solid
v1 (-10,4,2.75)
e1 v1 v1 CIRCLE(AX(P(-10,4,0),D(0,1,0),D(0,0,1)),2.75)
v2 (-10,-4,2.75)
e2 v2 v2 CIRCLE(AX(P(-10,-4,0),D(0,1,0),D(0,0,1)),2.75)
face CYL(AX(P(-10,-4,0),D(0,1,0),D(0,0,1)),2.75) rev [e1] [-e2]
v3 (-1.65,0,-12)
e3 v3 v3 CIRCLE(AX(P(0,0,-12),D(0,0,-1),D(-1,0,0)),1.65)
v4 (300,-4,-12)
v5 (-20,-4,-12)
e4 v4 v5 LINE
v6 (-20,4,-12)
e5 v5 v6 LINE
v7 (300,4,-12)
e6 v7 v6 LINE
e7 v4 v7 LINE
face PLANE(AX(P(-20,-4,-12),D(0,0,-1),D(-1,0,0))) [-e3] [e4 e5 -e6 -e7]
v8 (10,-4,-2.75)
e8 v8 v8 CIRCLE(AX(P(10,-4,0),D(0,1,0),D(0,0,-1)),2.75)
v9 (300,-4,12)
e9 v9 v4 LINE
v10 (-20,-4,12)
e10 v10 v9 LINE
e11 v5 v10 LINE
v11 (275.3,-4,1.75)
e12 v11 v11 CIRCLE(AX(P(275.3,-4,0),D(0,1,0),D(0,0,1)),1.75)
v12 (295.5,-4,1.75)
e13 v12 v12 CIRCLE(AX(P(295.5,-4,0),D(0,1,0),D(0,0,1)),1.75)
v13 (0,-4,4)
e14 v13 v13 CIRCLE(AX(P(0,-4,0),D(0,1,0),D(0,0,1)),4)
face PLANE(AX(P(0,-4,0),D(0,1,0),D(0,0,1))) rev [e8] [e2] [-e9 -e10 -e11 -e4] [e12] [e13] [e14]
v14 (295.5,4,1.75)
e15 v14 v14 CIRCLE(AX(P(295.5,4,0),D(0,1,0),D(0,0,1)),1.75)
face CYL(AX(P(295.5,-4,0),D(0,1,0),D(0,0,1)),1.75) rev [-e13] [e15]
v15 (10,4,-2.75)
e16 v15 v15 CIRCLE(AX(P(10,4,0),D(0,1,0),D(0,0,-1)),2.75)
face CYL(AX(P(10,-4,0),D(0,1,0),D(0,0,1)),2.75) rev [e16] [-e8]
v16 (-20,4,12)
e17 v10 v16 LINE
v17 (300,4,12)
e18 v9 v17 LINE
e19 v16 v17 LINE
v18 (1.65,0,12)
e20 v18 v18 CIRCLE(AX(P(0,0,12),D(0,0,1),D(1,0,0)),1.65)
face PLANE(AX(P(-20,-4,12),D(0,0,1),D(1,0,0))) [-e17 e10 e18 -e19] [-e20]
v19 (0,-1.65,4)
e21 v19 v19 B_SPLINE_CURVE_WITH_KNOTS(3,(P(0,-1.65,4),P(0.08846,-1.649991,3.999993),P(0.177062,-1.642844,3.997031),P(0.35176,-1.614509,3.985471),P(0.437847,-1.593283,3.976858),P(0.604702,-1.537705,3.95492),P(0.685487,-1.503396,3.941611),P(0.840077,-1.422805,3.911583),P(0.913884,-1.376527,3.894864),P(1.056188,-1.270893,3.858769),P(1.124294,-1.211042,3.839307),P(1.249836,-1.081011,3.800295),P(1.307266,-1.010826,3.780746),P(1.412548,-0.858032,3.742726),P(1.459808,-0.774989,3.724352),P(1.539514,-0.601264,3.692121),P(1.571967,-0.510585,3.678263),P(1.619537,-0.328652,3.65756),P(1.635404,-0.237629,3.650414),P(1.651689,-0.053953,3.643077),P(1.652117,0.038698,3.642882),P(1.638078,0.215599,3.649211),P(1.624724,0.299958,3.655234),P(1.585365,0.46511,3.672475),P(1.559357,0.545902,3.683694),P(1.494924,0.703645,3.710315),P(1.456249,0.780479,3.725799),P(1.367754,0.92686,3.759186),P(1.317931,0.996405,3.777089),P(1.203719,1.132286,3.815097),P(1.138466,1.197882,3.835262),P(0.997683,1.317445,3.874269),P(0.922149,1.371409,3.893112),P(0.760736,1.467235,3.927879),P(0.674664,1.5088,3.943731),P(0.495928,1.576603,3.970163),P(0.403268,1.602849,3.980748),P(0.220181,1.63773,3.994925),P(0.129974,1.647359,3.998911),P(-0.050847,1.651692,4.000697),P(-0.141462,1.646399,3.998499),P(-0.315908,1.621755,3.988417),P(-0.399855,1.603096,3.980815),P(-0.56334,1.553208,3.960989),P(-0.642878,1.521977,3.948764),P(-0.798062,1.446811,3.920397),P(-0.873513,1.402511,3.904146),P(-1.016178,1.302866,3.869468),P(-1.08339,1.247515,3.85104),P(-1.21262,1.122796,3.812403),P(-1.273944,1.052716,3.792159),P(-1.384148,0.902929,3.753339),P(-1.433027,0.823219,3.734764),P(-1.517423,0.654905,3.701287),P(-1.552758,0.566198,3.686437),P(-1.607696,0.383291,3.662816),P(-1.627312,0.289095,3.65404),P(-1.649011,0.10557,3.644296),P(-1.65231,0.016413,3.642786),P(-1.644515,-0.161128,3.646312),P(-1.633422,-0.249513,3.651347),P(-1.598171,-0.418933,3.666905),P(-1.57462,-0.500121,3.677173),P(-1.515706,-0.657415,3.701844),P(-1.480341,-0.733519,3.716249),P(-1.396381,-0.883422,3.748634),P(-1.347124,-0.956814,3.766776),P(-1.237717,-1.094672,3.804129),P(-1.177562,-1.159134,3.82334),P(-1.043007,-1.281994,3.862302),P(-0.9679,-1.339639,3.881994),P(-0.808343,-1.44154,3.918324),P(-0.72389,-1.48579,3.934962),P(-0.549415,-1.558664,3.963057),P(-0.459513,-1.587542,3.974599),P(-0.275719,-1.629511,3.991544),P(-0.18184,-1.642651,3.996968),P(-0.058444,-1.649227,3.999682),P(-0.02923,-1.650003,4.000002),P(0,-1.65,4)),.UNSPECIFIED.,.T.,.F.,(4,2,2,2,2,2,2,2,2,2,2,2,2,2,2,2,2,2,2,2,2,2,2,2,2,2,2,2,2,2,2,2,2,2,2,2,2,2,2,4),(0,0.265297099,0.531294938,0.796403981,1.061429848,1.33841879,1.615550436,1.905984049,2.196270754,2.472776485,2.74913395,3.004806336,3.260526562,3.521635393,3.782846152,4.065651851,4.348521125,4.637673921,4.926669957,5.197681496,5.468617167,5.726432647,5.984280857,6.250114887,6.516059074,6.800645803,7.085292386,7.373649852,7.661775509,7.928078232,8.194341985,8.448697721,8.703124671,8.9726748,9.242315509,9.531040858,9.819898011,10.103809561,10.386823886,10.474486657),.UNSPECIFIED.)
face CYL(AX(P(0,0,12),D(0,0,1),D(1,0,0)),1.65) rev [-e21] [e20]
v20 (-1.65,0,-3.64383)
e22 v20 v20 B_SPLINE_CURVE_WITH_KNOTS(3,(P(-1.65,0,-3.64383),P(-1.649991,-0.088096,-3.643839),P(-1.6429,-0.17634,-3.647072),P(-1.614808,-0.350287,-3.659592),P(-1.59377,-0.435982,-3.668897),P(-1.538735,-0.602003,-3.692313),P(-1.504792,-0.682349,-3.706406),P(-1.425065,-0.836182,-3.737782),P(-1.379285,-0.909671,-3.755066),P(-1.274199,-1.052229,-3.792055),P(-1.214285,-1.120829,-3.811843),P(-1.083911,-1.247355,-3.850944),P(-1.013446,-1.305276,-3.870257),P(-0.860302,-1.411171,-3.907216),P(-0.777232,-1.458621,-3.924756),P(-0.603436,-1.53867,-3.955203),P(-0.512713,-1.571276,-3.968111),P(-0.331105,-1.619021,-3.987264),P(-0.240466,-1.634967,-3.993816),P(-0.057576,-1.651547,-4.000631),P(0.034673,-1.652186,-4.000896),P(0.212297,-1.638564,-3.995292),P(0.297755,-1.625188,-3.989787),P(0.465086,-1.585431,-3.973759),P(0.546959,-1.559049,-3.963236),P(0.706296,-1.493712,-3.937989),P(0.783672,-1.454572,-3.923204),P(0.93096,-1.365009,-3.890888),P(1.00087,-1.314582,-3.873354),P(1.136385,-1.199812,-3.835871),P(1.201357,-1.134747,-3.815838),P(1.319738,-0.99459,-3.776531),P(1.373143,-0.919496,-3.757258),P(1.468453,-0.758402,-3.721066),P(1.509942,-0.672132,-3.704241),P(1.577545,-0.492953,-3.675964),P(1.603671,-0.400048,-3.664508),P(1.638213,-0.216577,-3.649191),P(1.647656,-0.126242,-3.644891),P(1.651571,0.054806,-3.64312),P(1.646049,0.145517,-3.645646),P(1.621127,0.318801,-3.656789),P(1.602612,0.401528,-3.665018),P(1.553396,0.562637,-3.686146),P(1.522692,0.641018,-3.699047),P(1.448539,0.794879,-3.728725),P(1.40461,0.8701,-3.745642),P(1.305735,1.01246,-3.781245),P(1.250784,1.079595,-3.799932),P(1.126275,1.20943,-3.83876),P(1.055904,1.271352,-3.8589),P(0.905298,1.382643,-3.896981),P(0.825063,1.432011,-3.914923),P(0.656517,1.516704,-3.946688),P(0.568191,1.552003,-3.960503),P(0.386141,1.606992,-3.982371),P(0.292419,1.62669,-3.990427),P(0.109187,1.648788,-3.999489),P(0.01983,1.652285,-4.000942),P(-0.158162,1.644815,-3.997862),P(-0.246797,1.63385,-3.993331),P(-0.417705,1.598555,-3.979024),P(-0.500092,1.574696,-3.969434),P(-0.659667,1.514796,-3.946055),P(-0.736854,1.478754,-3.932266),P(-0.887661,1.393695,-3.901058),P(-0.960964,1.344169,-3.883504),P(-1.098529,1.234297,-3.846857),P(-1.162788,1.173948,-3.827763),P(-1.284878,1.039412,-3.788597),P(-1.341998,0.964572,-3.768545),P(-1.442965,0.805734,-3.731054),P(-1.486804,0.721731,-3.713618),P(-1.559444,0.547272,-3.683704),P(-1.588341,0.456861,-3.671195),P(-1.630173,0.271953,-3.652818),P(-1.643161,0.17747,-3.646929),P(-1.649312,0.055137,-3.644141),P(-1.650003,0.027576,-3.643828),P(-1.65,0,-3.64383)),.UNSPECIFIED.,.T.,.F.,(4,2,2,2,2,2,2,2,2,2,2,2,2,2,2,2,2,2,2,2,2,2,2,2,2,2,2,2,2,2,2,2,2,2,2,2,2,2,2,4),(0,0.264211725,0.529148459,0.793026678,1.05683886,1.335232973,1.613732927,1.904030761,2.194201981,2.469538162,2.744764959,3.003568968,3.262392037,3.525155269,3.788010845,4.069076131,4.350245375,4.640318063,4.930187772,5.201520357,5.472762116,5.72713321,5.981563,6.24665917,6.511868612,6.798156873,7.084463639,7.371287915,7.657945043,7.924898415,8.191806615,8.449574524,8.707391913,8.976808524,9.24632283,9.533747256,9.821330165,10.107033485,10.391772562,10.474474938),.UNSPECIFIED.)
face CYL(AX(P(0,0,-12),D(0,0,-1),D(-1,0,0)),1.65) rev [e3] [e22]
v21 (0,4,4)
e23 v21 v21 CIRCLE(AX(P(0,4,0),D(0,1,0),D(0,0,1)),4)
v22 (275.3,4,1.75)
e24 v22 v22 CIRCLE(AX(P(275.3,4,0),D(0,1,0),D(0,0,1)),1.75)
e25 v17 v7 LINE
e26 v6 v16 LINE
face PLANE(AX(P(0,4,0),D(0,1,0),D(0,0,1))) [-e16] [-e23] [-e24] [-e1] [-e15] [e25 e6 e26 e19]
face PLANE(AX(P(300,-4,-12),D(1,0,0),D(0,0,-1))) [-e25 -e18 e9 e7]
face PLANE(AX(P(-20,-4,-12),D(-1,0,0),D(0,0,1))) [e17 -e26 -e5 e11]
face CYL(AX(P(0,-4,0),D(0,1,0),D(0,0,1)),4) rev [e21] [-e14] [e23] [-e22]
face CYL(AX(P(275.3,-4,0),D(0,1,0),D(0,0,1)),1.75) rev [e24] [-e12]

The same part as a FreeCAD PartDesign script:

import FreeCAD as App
import Part
import Sketcher
from FreeCAD import Vector

doc = App.newDocument("Part")
params = doc.addObject("Spreadsheet::Sheet", "Params")
for row, (alias, value) in enumerate([
    ("sketch1_diameter", "8 mm"),
    ("sketch1_diameter2", "5.5 mm"),
    ("sketch1_diameter3", "3.5 mm"),
    ("sketch1_width", "320 mm"),
    ("sketch1_height", "24 mm"),
    ("pad1_length", "4 mm"),
    ("pad1_length2", "4 mm"),
    ("sketch2_diameter", "3.3 mm"),
    ("sketch3_diameter", "3.3 mm"),
    ("hole_diameter", "3.3 mm"),
], start=1):
    params.set(f"A{row}", alias)
    params.set(f"B{row}", "=" + value)
    params.setAlias(f"B{row}", alias)

body = doc.addObject("PartDesign::Body", "Body")

# Sketch on XZ plane
sketch1 = body.newObject("Sketcher::SketchObject", "Sketch")
sketch1.AttachmentSupport = (doc.getObject("XZ_Plane"), [""])
sketch1.MapMode = "FlatFace"
sketch1.addGeometry([
    Part.LineSegment(Vector(-20, -12, 0), Vector(-20, 12, 0)),  # 0
    Part.LineSegment(Vector(-20, 12, 0), Vector(300, 12, 0)),  # 1
    Part.LineSegment(Vector(300, 12, 0), Vector(300, -12, 0)),  # 2
    Part.LineSegment(Vector(300, -12, 0), Vector(-20, -12, 0)),  # 3
    Part.Circle(Vector(-10, 0, 0), Vector(0, 0, 1), 2.75),  # 4
    Part.Circle(Vector(0, 0, 0), Vector(0, 0, 1), 4),  # 5
    Part.Circle(Vector(10, 0, 0), Vector(0, 0, 1), 2.75),  # 6
    Part.Circle(Vector(275.3, 0, 0), Vector(0, 0, 1), 1.75),  # 7
    Part.Circle(Vector(295.5, 0, 0), Vector(0, 0, 1), 1.75),  # 8
], False)
sketch1.addConstraint([
    Sketcher.Constraint("Coincident", 0, 2, 1, 1),
    Sketcher.Constraint("Coincident", 1, 2, 2, 1),
    Sketcher.Constraint("Coincident", 2, 2, 3, 1),
    Sketcher.Constraint("Coincident", 3, 2, 0, 1),
    Sketcher.Constraint("Vertical", 0),
    Sketcher.Constraint("Horizontal", 1),
    Sketcher.Constraint("Vertical", 2),
    Sketcher.Constraint("Horizontal", 3),
    Sketcher.Constraint("Coincident", 5, 3, -1, 1),
    Sketcher.Constraint("Equal", 4, 6),
    Sketcher.Constraint("Equal", 7, 8),
    Sketcher.Constraint("Symmetric", 4, 3, 6, 3, -1, 1),
    Sketcher.Constraint("PointOnObject", 4, 3, -1),
    Sketcher.Constraint("PointOnObject", 7, 3, -1),
    Sketcher.Constraint("PointOnObject", 8, 3, -1),
    Sketcher.Constraint("Diameter", 5, 8.0),
    Sketcher.Constraint("Diameter", 4, 5.5),
    Sketcher.Constraint("Diameter", 7, 3.5),
    Sketcher.Constraint("DistanceX", 1, 1, 1, 2, 320.0),
    Sketcher.Constraint("DistanceY", 0, 1, 0, 2, 24.0),
    Sketcher.Constraint("DistanceX", 4, 3, -1, 1, 10.0),
    Sketcher.Constraint("DistanceX", 0, 2, -1, 1, 20.0),
    Sketcher.Constraint("DistanceY", -1, 1, 0, 2, 12.0),
    Sketcher.Constraint("DistanceX", -1, 1, 7, 3, 275.3),
    Sketcher.Constraint("DistanceX", -1, 1, 8, 3, 295.5),
])
sketch1.setExpression("Constraints[15]", "Params.sketch1_diameter")
sketch1.setExpression("Constraints[16]", "Params.sketch1_diameter2")
sketch1.setExpression("Constraints[17]", "Params.sketch1_diameter3")
sketch1.setExpression("Constraints[18]", "Params.sketch1_width")
sketch1.setExpression("Constraints[19]", "Params.sketch1_height")
pad1 = body.newObject("PartDesign::Pad", "Pad")
pad1.Profile = sketch1
pad1.Type = "TwoLengths"
pad1.setExpression("Length", "Params.pad1_length")
pad1.setExpression("Length2", "Params.pad1_length2")
pad1.Reversed = True

# Sketch on XY plane
sketch2 = body.newObject("Sketcher::SketchObject", "Sketch001")
sketch2.AttachmentSupport = (doc.getObject("XY_Plane"), [""])
sketch2.MapMode = "FlatFace"
sketch2.AttachmentOffset = App.Placement(Vector(0, 0, 12), App.Rotation())
sketch2.addGeometry(Part.Circle(Vector(0, 0, 0), Vector(0, 0, 1), 1.65), False)
sketch2.addConstraint([
    Sketcher.Constraint("Coincident", 0, 3, -1, 1),
    Sketcher.Constraint("Diameter", 0, 3.3),
])
sketch2.setExpression("Constraints[1]", "Params.sketch2_diameter")
pocket1 = body.newObject("PartDesign::Pocket", "Pocket")
pocket1.Profile = sketch2
pocket1.Type = "UpToFirst"

# Sketch on XY plane
sketch3 = body.newObject("Sketcher::SketchObject", "Sketch002")
sketch3.AttachmentSupport = (doc.getObject("XY_Plane"), [""])
sketch3.MapMode = "FlatFace"
sketch3.AttachmentOffset = App.Placement(Vector(0, 0, -12), App.Rotation())
sketch3.addGeometry(Part.Circle(Vector(0, 0, 0), Vector(0, 0, 1), 1.65), False)
sketch3.addConstraint([
    Sketcher.Constraint("Coincident", 0, 3, -1, 1),
    Sketcher.Constraint("Diameter", 0, 3.3),
])
sketch3.setExpression("Constraints[1]", "Params.sketch3_diameter")
doc.recompute()
hole = body.newObject("PartDesign::Hole", "Hole")
hole.Profile = sketch3
hole.ThreadType = "None"
hole.setExpression("Diameter", "Params.hole_diameter")
hole.DepthType = "ThroughAll"
hole.Reversed = True

doc.recompute()
